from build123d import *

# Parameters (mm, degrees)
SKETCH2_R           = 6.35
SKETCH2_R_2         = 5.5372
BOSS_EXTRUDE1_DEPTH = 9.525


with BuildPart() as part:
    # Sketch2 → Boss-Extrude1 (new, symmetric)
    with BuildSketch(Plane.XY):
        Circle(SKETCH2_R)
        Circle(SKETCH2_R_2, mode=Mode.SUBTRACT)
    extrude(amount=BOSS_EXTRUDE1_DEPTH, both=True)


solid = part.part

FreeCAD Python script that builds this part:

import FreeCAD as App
import Part
import Sketcher
Q = App.Units.Quantity

doc = App.newDocument("Part")
params = doc.addObject("Spreadsheet::Sheet", "Params")
for row, (alias, value) in enumerate([
    ("sketch1_diameter", "0.5 in"),
    ("sketch1_diameter2", "0.436 in"),
    ("pad1_length", "0.75 in"),
], start=1):
    params.set(f"A{row}", alias)
    params.set(f"B{row}", "=" + value)
    params.setAlias(f"B{row}", alias)

body = doc.addObject("PartDesign::Body", "Body")

# Sketch on XY plane
sketch1 = body.newObject("Sketcher::SketchObject", "Sketch")
sketch1.AttachmentSupport = (doc.getObject("XY_Plane"), [""])
sketch1.MapMode = "FlatFace"
sketch1.addGeometry([
    Part.Circle(App.Vector(0, 0, 0), App.Vector(0, 0, 1), 6.35),
    Part.Circle(App.Vector(0, 0, 0), App.Vector(0, 0, 1), 5.5372),
], False)
sketch1.addConstraint([
    Sketcher.Constraint("Coincident", 0, 3, -1, 1),
    Sketcher.Constraint("Coincident", 1, 3, -1, 1),
    Sketcher.Constraint("Diameter", 0, Q("0.5 in")),
    Sketcher.Constraint("Diameter", 1, Q("0.436 in")),
])
sketch1.setExpression("Constraints[2]", "Params.sketch1_diameter")
sketch1.setExpression("Constraints[3]", "Params.sketch1_diameter2")
pad1 = body.newObject("PartDesign::Pad", "Pad")
pad1.Profile = sketch1
pad1.setExpression("Length", "Params.pad1_length")
pad1.Midplane = True

doc.recompute()
